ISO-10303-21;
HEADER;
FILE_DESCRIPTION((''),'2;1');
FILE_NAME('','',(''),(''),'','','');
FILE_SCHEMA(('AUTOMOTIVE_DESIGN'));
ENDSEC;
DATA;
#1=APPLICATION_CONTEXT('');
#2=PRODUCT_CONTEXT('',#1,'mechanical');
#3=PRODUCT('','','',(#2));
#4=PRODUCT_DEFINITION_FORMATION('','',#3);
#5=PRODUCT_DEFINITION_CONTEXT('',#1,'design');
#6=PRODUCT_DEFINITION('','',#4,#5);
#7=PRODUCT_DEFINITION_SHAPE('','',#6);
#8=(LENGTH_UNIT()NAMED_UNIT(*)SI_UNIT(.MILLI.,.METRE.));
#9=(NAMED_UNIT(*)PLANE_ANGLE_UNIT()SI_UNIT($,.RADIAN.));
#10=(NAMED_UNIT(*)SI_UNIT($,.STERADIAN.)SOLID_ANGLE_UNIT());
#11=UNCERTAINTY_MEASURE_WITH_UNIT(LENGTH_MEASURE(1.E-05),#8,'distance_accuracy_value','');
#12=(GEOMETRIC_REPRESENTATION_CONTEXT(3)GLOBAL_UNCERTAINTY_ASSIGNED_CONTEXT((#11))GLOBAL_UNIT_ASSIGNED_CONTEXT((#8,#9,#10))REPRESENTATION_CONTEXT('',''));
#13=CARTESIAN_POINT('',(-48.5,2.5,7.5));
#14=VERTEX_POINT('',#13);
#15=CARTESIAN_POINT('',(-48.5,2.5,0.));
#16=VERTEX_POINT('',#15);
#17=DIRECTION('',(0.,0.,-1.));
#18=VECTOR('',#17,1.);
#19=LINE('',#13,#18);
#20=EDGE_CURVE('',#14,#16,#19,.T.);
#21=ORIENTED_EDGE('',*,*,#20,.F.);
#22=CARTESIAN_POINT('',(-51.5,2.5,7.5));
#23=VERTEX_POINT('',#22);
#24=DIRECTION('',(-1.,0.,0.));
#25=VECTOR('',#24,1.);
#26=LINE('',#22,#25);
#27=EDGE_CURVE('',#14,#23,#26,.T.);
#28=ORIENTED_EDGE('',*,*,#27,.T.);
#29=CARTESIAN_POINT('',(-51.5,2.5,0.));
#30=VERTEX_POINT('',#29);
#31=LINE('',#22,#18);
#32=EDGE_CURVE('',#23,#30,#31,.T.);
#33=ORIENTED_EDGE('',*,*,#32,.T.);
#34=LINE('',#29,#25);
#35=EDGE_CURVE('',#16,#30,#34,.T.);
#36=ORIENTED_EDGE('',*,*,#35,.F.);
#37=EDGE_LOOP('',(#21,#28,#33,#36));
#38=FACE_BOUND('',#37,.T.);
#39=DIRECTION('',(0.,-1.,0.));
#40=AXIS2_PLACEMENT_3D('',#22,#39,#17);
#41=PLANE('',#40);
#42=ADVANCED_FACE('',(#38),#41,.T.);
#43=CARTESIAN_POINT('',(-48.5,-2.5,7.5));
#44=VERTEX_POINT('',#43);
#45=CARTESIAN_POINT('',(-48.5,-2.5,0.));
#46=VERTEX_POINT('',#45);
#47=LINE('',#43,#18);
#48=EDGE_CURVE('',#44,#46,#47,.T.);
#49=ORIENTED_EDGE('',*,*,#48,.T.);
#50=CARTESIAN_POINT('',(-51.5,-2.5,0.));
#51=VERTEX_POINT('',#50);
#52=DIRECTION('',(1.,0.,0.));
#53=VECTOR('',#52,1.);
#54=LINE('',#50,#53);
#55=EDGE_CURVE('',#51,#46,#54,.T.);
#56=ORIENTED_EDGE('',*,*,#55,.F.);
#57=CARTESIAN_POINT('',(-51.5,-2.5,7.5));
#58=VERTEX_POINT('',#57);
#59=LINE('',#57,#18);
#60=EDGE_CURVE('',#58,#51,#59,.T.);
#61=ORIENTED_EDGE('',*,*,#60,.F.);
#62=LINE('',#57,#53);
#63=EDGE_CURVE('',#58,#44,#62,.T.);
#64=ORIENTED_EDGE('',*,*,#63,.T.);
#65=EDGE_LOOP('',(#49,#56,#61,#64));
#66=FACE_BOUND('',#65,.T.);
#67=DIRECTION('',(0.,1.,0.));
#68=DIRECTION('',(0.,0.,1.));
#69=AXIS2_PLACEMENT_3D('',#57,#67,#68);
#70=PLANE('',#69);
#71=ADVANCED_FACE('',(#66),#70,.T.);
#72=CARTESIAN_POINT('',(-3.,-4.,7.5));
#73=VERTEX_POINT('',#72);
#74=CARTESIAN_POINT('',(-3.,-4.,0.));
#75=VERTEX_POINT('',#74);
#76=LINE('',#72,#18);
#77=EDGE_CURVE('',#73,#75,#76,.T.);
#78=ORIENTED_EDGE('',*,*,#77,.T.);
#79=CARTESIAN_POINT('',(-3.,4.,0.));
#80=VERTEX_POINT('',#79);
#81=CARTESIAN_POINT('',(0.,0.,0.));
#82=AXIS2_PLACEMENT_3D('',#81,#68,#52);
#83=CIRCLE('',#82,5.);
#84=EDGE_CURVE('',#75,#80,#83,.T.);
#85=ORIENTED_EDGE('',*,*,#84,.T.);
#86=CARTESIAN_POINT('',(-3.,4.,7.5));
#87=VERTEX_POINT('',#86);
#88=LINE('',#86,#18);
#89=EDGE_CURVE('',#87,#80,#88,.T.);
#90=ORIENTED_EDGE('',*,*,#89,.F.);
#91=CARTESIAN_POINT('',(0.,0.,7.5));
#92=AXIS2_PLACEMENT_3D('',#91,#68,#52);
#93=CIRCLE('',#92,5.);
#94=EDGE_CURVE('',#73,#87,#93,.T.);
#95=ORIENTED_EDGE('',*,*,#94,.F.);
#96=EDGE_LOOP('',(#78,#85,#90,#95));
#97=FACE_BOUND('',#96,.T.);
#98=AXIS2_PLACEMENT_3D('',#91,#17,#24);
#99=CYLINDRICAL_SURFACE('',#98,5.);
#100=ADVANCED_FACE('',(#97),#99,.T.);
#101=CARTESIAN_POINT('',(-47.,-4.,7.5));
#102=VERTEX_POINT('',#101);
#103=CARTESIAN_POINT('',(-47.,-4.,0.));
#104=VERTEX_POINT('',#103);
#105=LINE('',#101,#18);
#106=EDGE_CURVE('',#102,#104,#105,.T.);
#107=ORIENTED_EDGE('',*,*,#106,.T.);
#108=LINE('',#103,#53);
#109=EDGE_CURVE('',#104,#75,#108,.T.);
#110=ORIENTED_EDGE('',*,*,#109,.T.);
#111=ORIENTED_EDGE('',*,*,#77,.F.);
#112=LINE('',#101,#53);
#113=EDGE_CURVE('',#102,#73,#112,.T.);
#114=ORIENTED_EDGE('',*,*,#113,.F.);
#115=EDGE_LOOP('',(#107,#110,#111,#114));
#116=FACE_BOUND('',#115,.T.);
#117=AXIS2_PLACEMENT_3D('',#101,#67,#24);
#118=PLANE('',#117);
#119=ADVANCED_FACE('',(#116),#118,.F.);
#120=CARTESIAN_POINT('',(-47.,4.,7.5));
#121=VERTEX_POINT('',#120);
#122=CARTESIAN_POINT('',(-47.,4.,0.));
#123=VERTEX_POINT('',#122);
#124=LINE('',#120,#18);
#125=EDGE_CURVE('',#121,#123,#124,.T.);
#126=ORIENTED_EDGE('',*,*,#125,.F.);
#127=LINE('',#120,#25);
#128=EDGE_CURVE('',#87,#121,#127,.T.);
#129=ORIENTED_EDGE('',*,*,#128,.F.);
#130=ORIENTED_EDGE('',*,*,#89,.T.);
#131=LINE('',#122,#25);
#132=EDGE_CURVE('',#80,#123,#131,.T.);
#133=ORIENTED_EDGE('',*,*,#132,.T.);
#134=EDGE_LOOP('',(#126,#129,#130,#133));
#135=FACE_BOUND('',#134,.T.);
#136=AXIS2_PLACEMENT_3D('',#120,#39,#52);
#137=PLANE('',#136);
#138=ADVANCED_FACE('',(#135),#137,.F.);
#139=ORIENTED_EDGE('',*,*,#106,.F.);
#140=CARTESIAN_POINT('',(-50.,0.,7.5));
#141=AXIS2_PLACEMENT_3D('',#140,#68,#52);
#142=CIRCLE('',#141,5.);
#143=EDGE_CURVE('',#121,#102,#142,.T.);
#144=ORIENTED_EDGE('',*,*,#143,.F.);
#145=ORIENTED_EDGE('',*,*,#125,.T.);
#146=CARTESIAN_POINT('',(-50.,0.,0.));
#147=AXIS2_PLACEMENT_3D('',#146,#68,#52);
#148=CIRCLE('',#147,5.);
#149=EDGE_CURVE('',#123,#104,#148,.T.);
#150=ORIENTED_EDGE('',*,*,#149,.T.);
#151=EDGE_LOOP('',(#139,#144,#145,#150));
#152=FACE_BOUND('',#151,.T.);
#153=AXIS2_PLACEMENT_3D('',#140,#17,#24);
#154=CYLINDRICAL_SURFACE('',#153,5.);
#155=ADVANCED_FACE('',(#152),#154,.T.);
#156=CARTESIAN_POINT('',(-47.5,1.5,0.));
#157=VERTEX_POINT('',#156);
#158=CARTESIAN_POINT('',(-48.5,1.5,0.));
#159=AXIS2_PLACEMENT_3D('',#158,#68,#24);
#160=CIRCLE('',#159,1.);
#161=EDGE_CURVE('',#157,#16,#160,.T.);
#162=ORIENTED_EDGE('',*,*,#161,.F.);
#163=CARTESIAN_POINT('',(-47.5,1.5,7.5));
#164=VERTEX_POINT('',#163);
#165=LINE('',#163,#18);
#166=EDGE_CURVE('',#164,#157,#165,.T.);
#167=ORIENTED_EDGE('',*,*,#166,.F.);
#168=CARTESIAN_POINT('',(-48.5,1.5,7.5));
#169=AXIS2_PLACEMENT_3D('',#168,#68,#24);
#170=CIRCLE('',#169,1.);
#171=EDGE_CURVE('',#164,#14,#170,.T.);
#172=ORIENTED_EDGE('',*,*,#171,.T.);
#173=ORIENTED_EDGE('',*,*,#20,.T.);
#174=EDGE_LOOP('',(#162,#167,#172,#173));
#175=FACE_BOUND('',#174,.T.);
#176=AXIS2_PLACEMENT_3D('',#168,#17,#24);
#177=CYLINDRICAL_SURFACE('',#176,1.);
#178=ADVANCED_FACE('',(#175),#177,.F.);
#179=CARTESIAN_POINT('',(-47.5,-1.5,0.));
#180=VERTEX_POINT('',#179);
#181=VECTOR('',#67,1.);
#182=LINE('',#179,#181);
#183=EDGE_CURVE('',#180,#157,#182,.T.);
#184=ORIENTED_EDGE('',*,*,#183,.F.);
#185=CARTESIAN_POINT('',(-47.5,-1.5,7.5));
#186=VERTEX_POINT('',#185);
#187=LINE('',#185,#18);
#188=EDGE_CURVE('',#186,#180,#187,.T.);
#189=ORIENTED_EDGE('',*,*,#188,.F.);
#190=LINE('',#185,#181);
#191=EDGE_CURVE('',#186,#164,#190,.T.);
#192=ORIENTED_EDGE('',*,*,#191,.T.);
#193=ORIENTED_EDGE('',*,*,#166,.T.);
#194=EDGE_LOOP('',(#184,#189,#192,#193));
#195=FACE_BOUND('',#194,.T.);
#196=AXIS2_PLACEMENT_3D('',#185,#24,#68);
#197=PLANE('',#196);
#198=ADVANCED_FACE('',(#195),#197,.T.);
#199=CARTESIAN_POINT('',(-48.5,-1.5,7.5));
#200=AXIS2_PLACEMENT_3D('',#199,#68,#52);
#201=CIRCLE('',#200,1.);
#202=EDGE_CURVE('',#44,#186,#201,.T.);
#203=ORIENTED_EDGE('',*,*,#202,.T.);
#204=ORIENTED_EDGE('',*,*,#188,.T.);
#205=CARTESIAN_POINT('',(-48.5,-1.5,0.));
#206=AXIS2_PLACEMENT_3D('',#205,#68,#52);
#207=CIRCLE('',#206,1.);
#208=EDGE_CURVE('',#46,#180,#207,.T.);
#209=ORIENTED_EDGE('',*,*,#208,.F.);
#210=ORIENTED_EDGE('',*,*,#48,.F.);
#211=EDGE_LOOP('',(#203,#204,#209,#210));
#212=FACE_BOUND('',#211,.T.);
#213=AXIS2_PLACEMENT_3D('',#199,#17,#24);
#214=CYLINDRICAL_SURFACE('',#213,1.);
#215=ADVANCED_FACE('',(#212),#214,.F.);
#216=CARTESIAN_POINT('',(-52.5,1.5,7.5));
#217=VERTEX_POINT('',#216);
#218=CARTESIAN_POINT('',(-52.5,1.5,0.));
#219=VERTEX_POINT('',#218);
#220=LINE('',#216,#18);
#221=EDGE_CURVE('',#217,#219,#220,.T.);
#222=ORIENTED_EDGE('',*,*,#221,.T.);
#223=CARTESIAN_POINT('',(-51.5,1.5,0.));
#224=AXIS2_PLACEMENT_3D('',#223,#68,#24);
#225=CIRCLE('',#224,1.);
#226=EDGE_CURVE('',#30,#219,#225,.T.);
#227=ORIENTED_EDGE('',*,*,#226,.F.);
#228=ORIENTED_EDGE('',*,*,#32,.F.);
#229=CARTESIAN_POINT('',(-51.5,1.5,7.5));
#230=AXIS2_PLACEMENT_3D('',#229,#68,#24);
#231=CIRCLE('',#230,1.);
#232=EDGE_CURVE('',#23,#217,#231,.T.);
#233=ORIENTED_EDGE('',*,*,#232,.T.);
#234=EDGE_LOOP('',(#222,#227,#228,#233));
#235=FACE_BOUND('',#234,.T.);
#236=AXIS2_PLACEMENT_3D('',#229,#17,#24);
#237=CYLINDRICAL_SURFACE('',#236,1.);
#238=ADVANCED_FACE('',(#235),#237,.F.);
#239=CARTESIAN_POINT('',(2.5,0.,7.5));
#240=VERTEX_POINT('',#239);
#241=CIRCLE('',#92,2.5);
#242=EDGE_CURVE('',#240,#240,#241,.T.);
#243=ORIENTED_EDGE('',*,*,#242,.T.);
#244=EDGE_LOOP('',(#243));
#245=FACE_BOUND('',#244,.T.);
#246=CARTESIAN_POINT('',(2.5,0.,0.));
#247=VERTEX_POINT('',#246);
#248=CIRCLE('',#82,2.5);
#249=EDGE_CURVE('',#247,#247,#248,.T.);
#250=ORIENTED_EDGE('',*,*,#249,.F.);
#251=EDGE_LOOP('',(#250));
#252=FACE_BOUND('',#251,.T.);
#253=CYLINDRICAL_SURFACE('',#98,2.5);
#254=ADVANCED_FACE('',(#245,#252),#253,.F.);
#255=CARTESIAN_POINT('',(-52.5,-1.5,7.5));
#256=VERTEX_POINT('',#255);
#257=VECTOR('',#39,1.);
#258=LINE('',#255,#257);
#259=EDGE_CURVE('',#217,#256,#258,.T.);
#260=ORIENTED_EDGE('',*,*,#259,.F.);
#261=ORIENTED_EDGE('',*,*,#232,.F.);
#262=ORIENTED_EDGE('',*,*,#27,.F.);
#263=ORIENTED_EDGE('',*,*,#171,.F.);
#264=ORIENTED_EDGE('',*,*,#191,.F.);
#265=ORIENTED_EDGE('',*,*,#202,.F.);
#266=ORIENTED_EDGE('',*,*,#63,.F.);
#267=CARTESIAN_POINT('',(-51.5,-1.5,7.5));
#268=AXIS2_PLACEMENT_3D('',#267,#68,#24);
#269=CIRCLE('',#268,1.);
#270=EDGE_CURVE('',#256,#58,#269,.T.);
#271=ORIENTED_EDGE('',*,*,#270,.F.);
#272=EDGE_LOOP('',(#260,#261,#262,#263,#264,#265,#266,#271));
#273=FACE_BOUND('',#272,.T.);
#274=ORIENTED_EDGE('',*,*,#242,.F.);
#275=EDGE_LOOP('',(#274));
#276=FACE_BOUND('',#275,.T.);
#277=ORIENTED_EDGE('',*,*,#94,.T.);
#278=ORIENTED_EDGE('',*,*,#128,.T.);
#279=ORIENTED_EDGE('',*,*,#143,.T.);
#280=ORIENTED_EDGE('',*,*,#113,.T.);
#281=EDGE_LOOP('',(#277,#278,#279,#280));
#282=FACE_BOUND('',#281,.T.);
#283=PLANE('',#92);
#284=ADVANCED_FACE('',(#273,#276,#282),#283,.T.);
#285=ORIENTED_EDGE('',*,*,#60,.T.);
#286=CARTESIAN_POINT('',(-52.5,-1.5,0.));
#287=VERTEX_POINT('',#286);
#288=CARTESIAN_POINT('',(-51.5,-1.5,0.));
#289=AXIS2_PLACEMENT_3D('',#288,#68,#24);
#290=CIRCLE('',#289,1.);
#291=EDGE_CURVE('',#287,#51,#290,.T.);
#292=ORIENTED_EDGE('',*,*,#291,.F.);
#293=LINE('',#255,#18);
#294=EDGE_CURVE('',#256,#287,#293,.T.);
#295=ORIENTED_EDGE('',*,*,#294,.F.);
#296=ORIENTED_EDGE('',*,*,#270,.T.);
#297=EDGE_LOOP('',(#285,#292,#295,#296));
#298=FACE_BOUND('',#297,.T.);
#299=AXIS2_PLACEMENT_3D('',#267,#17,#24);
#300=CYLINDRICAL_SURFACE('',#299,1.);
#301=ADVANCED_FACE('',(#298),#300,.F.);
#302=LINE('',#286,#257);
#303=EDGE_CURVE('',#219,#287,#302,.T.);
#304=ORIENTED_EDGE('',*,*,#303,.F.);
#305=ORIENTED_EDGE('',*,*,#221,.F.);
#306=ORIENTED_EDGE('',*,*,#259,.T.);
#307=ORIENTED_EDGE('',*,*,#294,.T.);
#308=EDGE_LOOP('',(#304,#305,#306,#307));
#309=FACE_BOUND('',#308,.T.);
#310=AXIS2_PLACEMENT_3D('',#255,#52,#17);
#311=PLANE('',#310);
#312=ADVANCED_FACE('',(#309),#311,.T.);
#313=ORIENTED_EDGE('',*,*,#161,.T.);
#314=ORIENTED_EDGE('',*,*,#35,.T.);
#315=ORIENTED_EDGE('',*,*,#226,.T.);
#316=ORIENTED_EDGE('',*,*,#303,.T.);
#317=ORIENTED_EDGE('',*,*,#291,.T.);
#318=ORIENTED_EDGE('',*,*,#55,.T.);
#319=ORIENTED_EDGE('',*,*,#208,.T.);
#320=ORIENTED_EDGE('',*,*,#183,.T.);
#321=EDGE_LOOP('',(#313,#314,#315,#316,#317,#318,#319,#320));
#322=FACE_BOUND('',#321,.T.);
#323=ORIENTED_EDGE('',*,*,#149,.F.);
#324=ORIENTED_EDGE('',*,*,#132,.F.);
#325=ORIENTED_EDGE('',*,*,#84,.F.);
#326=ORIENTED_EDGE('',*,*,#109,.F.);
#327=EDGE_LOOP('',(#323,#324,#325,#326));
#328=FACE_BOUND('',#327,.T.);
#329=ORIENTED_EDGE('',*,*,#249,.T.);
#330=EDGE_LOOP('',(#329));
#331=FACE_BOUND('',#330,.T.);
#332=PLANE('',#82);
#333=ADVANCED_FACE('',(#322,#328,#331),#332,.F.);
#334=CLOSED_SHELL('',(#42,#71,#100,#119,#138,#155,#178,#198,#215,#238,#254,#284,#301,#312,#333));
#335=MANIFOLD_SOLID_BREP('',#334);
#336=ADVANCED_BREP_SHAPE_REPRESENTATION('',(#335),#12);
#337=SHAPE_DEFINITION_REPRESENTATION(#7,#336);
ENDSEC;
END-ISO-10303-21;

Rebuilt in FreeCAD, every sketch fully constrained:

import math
import FreeCAD as App
import Part
import Sketcher

doc = App.newDocument("Part")
body = doc.addObject("PartDesign::Body", "Body")

# Sketch on XY plane
sketch1 = doc.addObject("Sketcher::SketchObject", "Sketch")
body.addObject(sketch1)
sketch1.AttachmentSupport = (doc.XY_Plane, [""])
sketch1.MapMode = "FlatFace"
sketch1.addGeometry(Part.LineSegment(App.Vector(-3, 4, 0), App.Vector(-47, 4, 0)), False)
sketch1.addGeometry(Part.ArcOfCircle(Part.Circle(App.Vector(-50, 0, 0), App.Vector(0, 0, 1), 5), math.radians(53), math.radians(307)), False)
sketch1.addGeometry(Part.LineSegment(App.Vector(-47, -4, 0), App.Vector(-3, -4, 0)), False)
sketch1.addGeometry(Part.ArcOfCircle(Part.Circle(App.Vector(0, 0, 0), App.Vector(0, 0, 1), 5), math.radians(-127), math.radians(127)), False)
sketch1.addGeometry(Part.Circle(App.Vector(0, 0, 0), App.Vector(0, 0, 1), 2.5), False)
sketch1.addGeometry(Part.ArcOfCircle(Part.Circle(App.Vector(-51.5, -1.5, 0), App.Vector(0, 0, 1), 1), math.radians(-180), math.radians(-90)), False)
sketch1.addGeometry(Part.LineSegment(App.Vector(-52.5, -1.5, 0), App.Vector(-52.5, 1.5, 0)), False)
sketch1.addGeometry(Part.ArcOfCircle(Part.Circle(App.Vector(-51.5, 1.5, 0), App.Vector(0, 0, 1), 1), math.radians(90), math.radians(180)), False)
sketch1.addGeometry(Part.LineSegment(App.Vector(-51.5, 2.5, 0), App.Vector(-48.5, 2.5, 0)), False)
sketch1.addGeometry(Part.ArcOfCircle(Part.Circle(App.Vector(-48.5, 1.5, 0), App.Vector(0, 0, 1), 1), math.radians(0), math.radians(90)), False)
sketch1.addGeometry(Part.LineSegment(App.Vector(-47.5, 1.5, 0), App.Vector(-47.5, -1.5, 0)), False)
sketch1.addGeometry(Part.ArcOfCircle(Part.Circle(App.Vector(-48.5, -1.5, 0), App.Vector(0, 0, 1), 1), math.radians(-90), math.radians(0)), False)
sketch1.addGeometry(Part.LineSegment(App.Vector(-48.5, -2.5, 0), App.Vector(-51.5, -2.5, 0)), False)
sketch1.addConstraint(Sketcher.Constraint("Coincident", 0, 2, 1, 1))
sketch1.addConstraint(Sketcher.Constraint("Coincident", 1, 2, 2, 1))
sketch1.addConstraint(Sketcher.Constraint("Coincident", 2, 2, 3, 1))
sketch1.addConstraint(Sketcher.Constraint("Coincident", 3, 2, 0, 1))
sketch1.addConstraint(Sketcher.Constraint("Tangent", 5, 1, 6, 1))
sketch1.addConstraint(Sketcher.Constraint("Tangent", 6, 2, 7, 2))
sketch1.addConstraint(Sketcher.Constraint("Tangent", 7, 1, 8, 1))
sketch1.addConstraint(Sketcher.Constraint("Tangent", 8, 2, 9, 2))
sketch1.addConstraint(Sketcher.Constraint("Tangent", 9, 1, 10, 1))
sketch1.addConstraint(Sketcher.Constraint("Tangent", 10, 2, 11, 2))
sketch1.addConstraint(Sketcher.Constraint("Tangent", 11, 1, 12, 1))
sketch1.addConstraint(Sketcher.Constraint("Tangent", 12, 2, 5, 2))
sketch1.addConstraint(Sketcher.Constraint("Horizontal", 0))
sketch1.addConstraint(Sketcher.Constraint("Horizontal", 2))
sketch1.addConstraint(Sketcher.Constraint("Vertical", 6))
sketch1.addConstraint(Sketcher.Constraint("Horizontal", 8))
sketch1.addConstraint(Sketcher.Constraint("Vertical", 10))
sketch1.addConstraint(Sketcher.Constraint("Horizontal", 12))
sketch1.addConstraint(Sketcher.Constraint("Coincident", 3, 3, -1, 1))
sketch1.addConstraint(Sketcher.Constraint("Coincident", 4, 3, -1, 1))
sketch1.addConstraint(Sketcher.Constraint("Equal", 1, 3))
sketch1.addConstraint(Sketcher.Constraint("Equal", 5, 7))
sketch1.addConstraint(Sketcher.Constraint("Equal", 7, 9))
sketch1.addConstraint(Sketcher.Constraint("Equal", 9, 11))
sketch1.addConstraint(Sketcher.Constraint("Symmetric", 0, 2, 1, 2, -1))
sketch1.addConstraint(Sketcher.Constraint("Equal", 12, 6))
sketch1.addConstraint(Sketcher.Constraint("Diameter", 4, 5.0))
sketch1.addConstraint(Sketcher.Constraint("Radius", 1, 5.0))
sketch1.addConstraint(Sketcher.Constraint("Radius", 5, 1.0))
sketch1.addConstraint(Sketcher.Constraint("DistanceX", 0, 2, 0, 1, 44.0))
sketch1.addConstraint(Sketcher.Constraint("DistanceX", 8, 1, 8, 2, 3.0))
sketch1.addConstraint(Sketcher.Constraint("DistanceX", 1, 3, -1, 1, 50.0))
sketch1.addConstraint(Sketcher.Constraint("DistanceX", 5, 3, -1, 1, 51.5))
sketch1.addConstraint(Sketcher.Constraint("DistanceY", 5, 3, -1, 1, 1.5))
pad1 = doc.addObject("PartDesign::Pad", "Pad")
body.addObject(pad1)
pad1.Profile = sketch1
pad1.Length = 7.5

doc.recompute()
